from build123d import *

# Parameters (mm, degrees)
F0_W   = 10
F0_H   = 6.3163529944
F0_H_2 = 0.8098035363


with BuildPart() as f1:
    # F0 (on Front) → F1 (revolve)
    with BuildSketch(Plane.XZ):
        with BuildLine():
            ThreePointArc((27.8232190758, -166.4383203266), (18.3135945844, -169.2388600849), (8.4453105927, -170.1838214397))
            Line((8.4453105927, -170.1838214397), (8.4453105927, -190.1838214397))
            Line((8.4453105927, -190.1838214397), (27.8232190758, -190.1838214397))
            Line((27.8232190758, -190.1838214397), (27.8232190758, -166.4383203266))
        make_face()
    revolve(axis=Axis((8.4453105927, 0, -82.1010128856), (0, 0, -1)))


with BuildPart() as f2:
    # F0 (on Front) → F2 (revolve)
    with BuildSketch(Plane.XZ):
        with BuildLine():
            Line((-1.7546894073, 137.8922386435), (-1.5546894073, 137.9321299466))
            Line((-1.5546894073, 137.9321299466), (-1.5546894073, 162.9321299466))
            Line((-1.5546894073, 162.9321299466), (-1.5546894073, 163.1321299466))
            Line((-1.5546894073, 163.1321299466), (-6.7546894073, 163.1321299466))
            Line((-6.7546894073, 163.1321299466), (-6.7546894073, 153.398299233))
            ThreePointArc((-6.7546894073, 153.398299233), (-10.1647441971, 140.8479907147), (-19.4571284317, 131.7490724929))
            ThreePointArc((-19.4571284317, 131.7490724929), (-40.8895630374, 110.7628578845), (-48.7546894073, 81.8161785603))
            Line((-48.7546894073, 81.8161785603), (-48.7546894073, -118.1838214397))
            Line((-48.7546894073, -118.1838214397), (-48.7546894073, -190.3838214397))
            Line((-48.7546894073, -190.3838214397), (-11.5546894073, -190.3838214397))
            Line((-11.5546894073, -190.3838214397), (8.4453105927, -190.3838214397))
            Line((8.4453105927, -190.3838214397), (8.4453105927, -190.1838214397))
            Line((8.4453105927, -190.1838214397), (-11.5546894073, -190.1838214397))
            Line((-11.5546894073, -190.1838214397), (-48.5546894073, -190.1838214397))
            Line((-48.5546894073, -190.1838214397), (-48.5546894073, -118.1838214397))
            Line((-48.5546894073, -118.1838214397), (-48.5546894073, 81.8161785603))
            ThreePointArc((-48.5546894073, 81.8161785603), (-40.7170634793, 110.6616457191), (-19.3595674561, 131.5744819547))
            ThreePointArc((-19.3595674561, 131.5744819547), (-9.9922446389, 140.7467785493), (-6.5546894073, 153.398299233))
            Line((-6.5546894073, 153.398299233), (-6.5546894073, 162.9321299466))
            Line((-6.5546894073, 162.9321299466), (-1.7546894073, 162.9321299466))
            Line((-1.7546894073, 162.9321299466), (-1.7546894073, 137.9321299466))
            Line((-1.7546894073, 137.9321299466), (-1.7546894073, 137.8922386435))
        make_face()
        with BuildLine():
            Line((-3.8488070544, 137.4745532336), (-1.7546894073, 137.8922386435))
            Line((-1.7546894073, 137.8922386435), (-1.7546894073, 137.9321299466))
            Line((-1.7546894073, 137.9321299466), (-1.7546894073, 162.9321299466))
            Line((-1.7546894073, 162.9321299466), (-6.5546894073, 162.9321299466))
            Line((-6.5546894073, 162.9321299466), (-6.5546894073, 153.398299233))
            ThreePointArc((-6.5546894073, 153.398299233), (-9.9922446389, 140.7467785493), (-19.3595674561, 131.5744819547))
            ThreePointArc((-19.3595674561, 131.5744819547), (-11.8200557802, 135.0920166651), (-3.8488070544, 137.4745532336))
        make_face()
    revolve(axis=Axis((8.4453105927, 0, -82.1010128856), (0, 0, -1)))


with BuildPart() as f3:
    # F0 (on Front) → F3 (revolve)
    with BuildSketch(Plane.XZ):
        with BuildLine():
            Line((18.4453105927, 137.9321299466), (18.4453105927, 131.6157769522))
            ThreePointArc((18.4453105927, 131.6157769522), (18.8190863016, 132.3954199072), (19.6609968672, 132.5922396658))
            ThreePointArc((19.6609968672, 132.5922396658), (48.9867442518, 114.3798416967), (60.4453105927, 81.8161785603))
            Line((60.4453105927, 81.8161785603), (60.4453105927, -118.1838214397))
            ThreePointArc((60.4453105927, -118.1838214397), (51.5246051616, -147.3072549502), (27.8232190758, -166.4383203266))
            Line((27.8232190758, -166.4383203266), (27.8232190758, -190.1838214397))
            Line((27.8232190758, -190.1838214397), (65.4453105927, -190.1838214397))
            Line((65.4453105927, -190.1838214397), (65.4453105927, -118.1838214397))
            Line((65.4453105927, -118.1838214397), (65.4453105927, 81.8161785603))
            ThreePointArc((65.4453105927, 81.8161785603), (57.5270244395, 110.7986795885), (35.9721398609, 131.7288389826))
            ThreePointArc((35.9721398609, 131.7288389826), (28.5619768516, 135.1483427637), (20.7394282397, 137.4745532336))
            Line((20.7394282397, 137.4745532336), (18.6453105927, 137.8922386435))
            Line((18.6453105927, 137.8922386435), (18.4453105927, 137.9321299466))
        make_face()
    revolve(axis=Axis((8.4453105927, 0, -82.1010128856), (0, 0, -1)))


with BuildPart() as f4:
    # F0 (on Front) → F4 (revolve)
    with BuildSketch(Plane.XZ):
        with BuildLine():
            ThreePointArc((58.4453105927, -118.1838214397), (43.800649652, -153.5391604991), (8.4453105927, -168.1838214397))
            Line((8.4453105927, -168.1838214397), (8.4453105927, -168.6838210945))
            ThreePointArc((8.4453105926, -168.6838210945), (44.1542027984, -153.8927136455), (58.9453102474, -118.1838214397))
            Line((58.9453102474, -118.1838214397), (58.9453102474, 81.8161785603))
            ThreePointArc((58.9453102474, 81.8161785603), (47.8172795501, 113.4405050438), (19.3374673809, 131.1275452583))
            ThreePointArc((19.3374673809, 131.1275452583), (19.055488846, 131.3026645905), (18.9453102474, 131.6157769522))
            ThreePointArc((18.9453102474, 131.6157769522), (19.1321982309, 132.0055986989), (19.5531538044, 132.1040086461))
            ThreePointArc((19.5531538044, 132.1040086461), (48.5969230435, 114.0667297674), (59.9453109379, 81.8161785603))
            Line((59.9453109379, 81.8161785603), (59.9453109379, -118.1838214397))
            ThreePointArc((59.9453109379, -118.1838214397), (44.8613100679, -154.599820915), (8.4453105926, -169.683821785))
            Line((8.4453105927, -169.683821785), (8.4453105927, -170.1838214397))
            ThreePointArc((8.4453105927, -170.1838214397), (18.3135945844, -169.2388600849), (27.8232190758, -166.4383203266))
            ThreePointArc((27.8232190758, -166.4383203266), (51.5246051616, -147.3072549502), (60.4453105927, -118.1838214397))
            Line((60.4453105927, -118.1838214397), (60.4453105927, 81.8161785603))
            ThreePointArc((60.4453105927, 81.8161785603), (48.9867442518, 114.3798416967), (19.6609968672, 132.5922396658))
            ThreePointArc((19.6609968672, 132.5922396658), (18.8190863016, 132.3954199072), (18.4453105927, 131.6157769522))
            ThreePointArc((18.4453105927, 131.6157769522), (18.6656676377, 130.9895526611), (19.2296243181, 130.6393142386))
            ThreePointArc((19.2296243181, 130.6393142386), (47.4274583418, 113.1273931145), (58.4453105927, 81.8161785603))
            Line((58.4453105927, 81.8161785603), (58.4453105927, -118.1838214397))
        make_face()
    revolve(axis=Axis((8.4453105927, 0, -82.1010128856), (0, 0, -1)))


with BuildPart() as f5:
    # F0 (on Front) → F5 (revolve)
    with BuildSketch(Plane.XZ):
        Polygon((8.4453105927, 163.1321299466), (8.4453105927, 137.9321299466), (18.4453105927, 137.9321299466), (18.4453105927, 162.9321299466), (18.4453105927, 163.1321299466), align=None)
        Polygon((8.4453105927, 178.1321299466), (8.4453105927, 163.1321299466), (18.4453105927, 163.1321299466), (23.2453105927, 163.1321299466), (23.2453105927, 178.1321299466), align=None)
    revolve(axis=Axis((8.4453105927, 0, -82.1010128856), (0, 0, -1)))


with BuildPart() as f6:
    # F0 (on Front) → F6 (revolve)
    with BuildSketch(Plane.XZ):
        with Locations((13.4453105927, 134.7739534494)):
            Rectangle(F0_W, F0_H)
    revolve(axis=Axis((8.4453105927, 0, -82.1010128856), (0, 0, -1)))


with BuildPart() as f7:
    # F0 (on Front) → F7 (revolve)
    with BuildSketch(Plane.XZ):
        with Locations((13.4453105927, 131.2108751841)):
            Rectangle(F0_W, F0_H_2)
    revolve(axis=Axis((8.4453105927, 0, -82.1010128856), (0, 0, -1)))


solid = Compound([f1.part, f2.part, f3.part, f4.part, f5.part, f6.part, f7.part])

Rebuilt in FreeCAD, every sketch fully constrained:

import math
import FreeCAD as App
import Part
import Sketcher

V = App.Vector
Q = App.Units.Quantity


def add_polygon(sketch, points):
    """Adds a closed chain of lines whose ends are joined by coincident constraints."""
    first, n = sketch.GeometryCount, len(points)
    for a, b in zip(points, points[1:] + points[:1]):
        sketch.addGeometry(Part.LineSegment(App.Vector(*a, 0), App.Vector(*b, 0)), False)
    for i in range(n):
        sketch.addConstraint(Sketcher.Constraint("Coincident", first + i, 2, first + (i + 1) % n, 1))

doc = App.newDocument("Part")
params = doc.addObject("Spreadsheet::Sheet", "Params")
for row, (alias, value) in enumerate([
    ("sketch1_radius", "52 mm"),
    ("sketch1_height", "20 mm"),
    ("revolution_angle", "360 deg"),
    ("sketch2_radius", "57 mm"),
    ("sketch2_radius2", "24.8 mm"),
    ("sketch2_radius3", "57.2 mm"),
    ("sketch2_height", "272 mm"),
    ("sketch2_width", "5.2 mm"),
    ("revolution2_angle", "360 deg"),
    ("sketch3_radius", "1 mm"),
    ("sketch3_radius2", "52 mm"),
    ("sketch3_radius3", "57 mm"),
    ("sketch3_height", "200 mm"),
    ("sketch3_height2", "272 mm"),
    ("revolution3_angle", "360 deg"),
    ("sketch4_radius", "50 mm"),
    ("sketch4_radius2", "52 mm"),
    ("sketch4_radius3", "50.5 mm"),
    ("sketch4_height", "200 mm"),
    ("revolution4_angle", "360 deg"),
    ("sketch5_width", "10 mm"),
    ("sketch5_height", "15 mm"),
    ("sketch5_width2", "4.8 mm"),
    ("sketch5_height2", "25.2 mm"),
    ("revolution5_angle", "360 deg"),
    ("sketch6_width", "10 mm"),
    ("revolution6_angle", "360 deg"),
    ("sketch7_width", "10 mm"),
    ("revolution7_angle", "360 deg"),
], start=1):
    params.set(f"A{row}", alias)
    params.set(f"B{row}", "=" + value)
    params.setAlias(f"B{row}", alias)

body = doc.addObject("PartDesign::Body", "Body")

# Sketch on XZ plane
sketch1 = doc.addObject("Sketcher::SketchObject", "Sketch")
body.addObject(sketch1)
sketch1.AttachmentSupport = (doc.XZ_Plane, [""])
sketch1.MapMode = "FlatFace"
sketch1.addGeometry(Part.ArcOfCircle(Part.Circle(V(8, -118, 0), V(0, 0, 1), 52), math.radians(-90), math.radians(-68)), False)
sketch1.addGeometry(Part.LineSegment(V(8, -170, 0), V(8, -190, 0)), False)
sketch1.addGeometry(Part.LineSegment(V(8, -190, 0), V(28, -190, 0)), False)
sketch1.addGeometry(Part.LineSegment(V(28, -190, 0), V(28, -166, 0)), False)
sketch1.addGeometry(Part.LineSegment(V(8, -118, 0), V(8, -190, 0)), True)  # axis
sketch1.addConstraint(Sketcher.Constraint("Coincident", 0, 1, 1, 1))
sketch1.addConstraint(Sketcher.Constraint("Coincident", 1, 2, 2, 1))
sketch1.addConstraint(Sketcher.Constraint("Coincident", 2, 2, 3, 1))
sketch1.addConstraint(Sketcher.Constraint("Coincident", 3, 2, 0, 2))
sketch1.addConstraint(Sketcher.Constraint("Vertical", 1))
sketch1.addConstraint(Sketcher.Constraint("Horizontal", 2))
sketch1.addConstraint(Sketcher.Constraint("Vertical", 3))
sketch1.addConstraint(Sketcher.Constraint("Vertical", 4))
sketch1.addConstraint(Sketcher.Constraint("Coincident", 4, 1, 0, 3))
sketch1.addConstraint(Sketcher.Constraint("Coincident", 4, 2, 1, 2))
sketch1.addConstraint(Sketcher.Constraint("Radius", 0, 52.0))
sketch1.addConstraint(Sketcher.Constraint("DistanceY", 1, 2, 1, 1, 20.0))
sketch1.addConstraint(Sketcher.Constraint("DistanceY", 3, 1, 3, 2, 23.745501))
sketch1.addConstraint(Sketcher.Constraint("DistanceX", -1, 1, 0, 3, 8.445311))
sketch1.addConstraint(Sketcher.Constraint("DistanceY", 0, 3, -1, 1, 118.183821))
sketch1.setExpression("Constraints[10]", "Params.sketch1_radius")
sketch1.setExpression("Constraints[11]", "Params.sketch1_height")
revolution = doc.addObject("PartDesign::Revolution", "Revolution")
body.addObject(revolution)
revolution.Profile = sketch1
revolution.ReferenceAxis = (sketch1, ["Axis0"])
revolution.setExpression("Angle", "Params.revolution_angle")
body2 = doc.addObject("PartDesign::Body", "Body001")

# Sketch on XZ plane
sketch2 = doc.addObject("Sketcher::SketchObject", "Sketch001")
body2.addObject(sketch2)
sketch2.AttachmentSupport = (doc.getObject("XZ_Plane001"), [""])
sketch2.MapMode = "FlatFace"
sketch2.addGeometry(Part.LineSegment(V(-1.75, 137.89, 0), V(-1.55, 137.93, 0)), False)
sketch2.addGeometry(Part.LineSegment(V(-1.55, 137.93, 0), V(-1.55, 163.13, 0)), False)
sketch2.addGeometry(Part.LineSegment(V(-1.55, 163.13, 0), V(-6.75, 163.13, 0)), False)
sketch2.addGeometry(Part.LineSegment(V(-6.75, 163.13, 0), V(-6.75, 153.4, 0)), False)
sketch2.addGeometry(Part.ArcOfCircle(Part.Circle(V(-31.55, 153.4, 0), V(0, 0, 1), 24.8), math.radians(-61), math.radians(0)), False)
sketch2.addGeometry(Part.ArcOfCircle(Part.Circle(V(8.45, 81.82, 0), V(0, 0, 1), 57.2), math.radians(119), math.radians(180)), False)
sketch2.addGeometry(Part.LineSegment(V(-48.75, 81.82, 0), V(-48.75, -190.38, 0)), False)
sketch2.addGeometry(Part.LineSegment(V(-48.75, -190.38, 0), V(8.45, -190.38, 0)), False)
sketch2.addGeometry(Part.LineSegment(V(8.45, -190.38, 0), V(8.45, -190.18, 0)), False)
sketch2.addGeometry(Part.LineSegment(V(8.45, -190.18, 0), V(-48.55, -190.18, 0)), False)
sketch2.addGeometry(Part.LineSegment(V(-48.55, -190.18, 0), V(-48.55, 81.82, 0)), False)
sketch2.addGeometry(Part.ArcOfCircle(Part.Circle(V(8.45, 81.82, 0), V(0, 0, 1), 57), math.radians(119), math.radians(180)), False)
sketch2.addGeometry(Part.ArcOfCircle(Part.Circle(V(8.45, 81.82, 0), V(0, 0, 1), 57), math.radians(102.46), math.radians(119.2)), False)
sketch2.addGeometry(Part.LineSegment(V(-3.85, 137.47, 0), V(-1.75, 137.89, 0)), False)
sketch2.addGeometry(Part.LineSegment(V(8.45, 163.13, 0), V(8.45, -190.38, 0)), True)  # axis
sketch2.addConstraint(Sketcher.Constraint("Coincident", 0, 2, 1, 1))
sketch2.addConstraint(Sketcher.Constraint("Coincident", 1, 2, 2, 1))
sketch2.addConstraint(Sketcher.Constraint("Coincident", 2, 2, 3, 1))
sketch2.addConstraint(Sketcher.Constraint("Tangent", 3, 2, 4, 2))
sketch2.addConstraint(Sketcher.Constraint("Tangent", 4, 1, 5, 1))
sketch2.addConstraint(Sketcher.Constraint("Tangent", 5, 2, 6, 1))
sketch2.addConstraint(Sketcher.Constraint("Coincident", 6, 2, 7, 1))
sketch2.addConstraint(Sketcher.Constraint("Coincident", 7, 2, 8, 1))
sketch2.addConstraint(Sketcher.Constraint("Coincident", 8, 2, 9, 1))
sketch2.addConstraint(Sketcher.Constraint("Coincident", 9, 2, 10, 1))
sketch2.addConstraint(Sketcher.Constraint("Tangent", 10, 2, 11, 2))
sketch2.addConstraint(Sketcher.Constraint("Tangent", 11, 1, 12, 2))
sketch2.addConstraint(Sketcher.Constraint("Coincident", 12, 1, 13, 1))
sketch2.addConstraint(Sketcher.Constraint("Coincident", 13, 2, 0, 1))
sketch2.addConstraint(Sketcher.Constraint("Vertical", 1))
sketch2.addConstraint(Sketcher.Constraint("Horizontal", 2))
sketch2.addConstraint(Sketcher.Constraint("Vertical", 3))
sketch2.addConstraint(Sketcher.Constraint("Vertical", 6))
sketch2.addConstraint(Sketcher.Constraint("Horizontal", 7))
sketch2.addConstraint(Sketcher.Constraint("Vertical", 8))
sketch2.addConstraint(Sketcher.Constraint("Horizontal", 9))
sketch2.addConstraint(Sketcher.Constraint("Vertical", 10))
sketch2.addConstraint(Sketcher.Constraint("Vertical", 14))
sketch2.addConstraint(Sketcher.Constraint("Coincident", 11, 3, 5, 3))
sketch2.addConstraint(Sketcher.Constraint("Coincident", 14, 2, 7, 2))
sketch2.addConstraint(Sketcher.Constraint("Equal", 11, 12))
sketch2.addConstraint(Sketcher.Constraint("Parallel", 0, 13))
sketch2.addConstraint(Sketcher.Constraint("Horizontal", 2, 2, 14, 1))
sketch2.addConstraint(Sketcher.Constraint("Vertical", 12, 3, 7, 2))
sketch2.addConstraint(Sketcher.Constraint("Radius", 11, 57.0))
sketch2.addConstraint(Sketcher.Constraint("Radius", 4, 24.8))
sketch2.addConstraint(Sketcher.Constraint("Radius", 5, 57.2))
sketch2.addConstraint(Sketcher.Constraint("DistanceY", 10, 1, 10, 2, 272.0))
sketch2.addConstraint(Sketcher.Constraint("DistanceX", 2, 2, 2, 1, 5.2))
sketch2.addConstraint(Sketcher.Constraint("DistanceY", 1, 1, 1, 2, 25.2))
sketch2.addConstraint(Sketcher.Constraint("DistanceY", 6, 2, 6, 1, 272.2))
sketch2.addConstraint(Sketcher.Constraint("DistanceX", 4, 3, 5, 3, 40.0))
sketch2.addConstraint(Sketcher.Constraint("DistanceX", 3, 2, 13, 2, 5.0))
sketch2.addConstraint(Sketcher.Constraint("Angle", 0, Q("11.279988 deg")))
sketch2.addConstraint(Sketcher.Constraint("DistanceY", 3, 2, 3, 1, 9.733831))
sketch2.addConstraint(Sketcher.Constraint("DistanceY", -1, 1, 4, 3, 153.398299))
sketch2.addConstraint(Sketcher.Constraint("DistanceX", 4, 3, -1, 1, 31.554689))
sketch2.addConstraint(Sketcher.Constraint("DistanceY", -1, 1, 11, 1, 131.574482))
sketch2.setExpression("Constraints[29]", "Params.sketch2_radius")
sketch2.setExpression("Constraints[30]", "Params.sketch2_radius2")
sketch2.setExpression("Constraints[31]", "Params.sketch2_radius3")
sketch2.setExpression("Constraints[32]", "Params.sketch2_height")
sketch2.setExpression("Constraints[33]", "Params.sketch2_width")
revolution2 = doc.addObject("PartDesign::Revolution", "Revolution001")
body2.addObject(revolution2)
revolution2.Profile = sketch2
revolution2.ReferenceAxis = (sketch2, ["Axis0"])
revolution2.setExpression("Angle", "Params.revolution2_angle")
body3 = doc.addObject("PartDesign::Body", "Body002")

# Sketch on XZ plane
sketch3 = doc.addObject("Sketcher::SketchObject", "Sketch002")
body3.addObject(sketch3)
sketch3.AttachmentSupport = (doc.getObject("XZ_Plane002"), [""])
sketch3.MapMode = "FlatFace"
sketch3.addGeometry(Part.LineSegment(V(18.45, 137.93, 0), V(18.45, 131.62, 0)), False)
sketch3.addGeometry(Part.ArcOfCircle(Part.Circle(V(19.45, 131.62, 0), V(0, 0, 1), 1), math.radians(78), math.radians(180)), False)
sketch3.addGeometry(Part.ArcOfCircle(Part.Circle(V(8.45, 81.82, 0), V(0, 0, 1), 52), math.radians(0), math.radians(78)), False)
sketch3.addGeometry(Part.LineSegment(V(60.45, 81.82, 0), V(60.45, -118.18, 0)), False)
sketch3.addGeometry(Part.ArcOfCircle(Part.Circle(V(8.45, -118.18, 0), V(0, 0, 1), 52), math.radians(-68), math.radians(0)), False)
sketch3.addGeometry(Part.LineSegment(V(27.82, -166.44, 0), V(27.82, -190.18, 0)), False)
sketch3.addGeometry(Part.LineSegment(V(27.82, -190.18, 0), V(65.45, -190.18, 0)), False)
sketch3.addGeometry(Part.LineSegment(V(65.45, -190.18, 0), V(65.45, 81.82, 0)), False)
sketch3.addGeometry(Part.ArcOfCircle(Part.Circle(V(8.45, 81.82, 0), V(0, 0, 1), 57), math.radians(0), math.radians(61)), False)
sketch3.addGeometry(Part.ArcOfCircle(Part.Circle(V(8.45, 81.82, 0), V(0, 0, 1), 57), math.radians(61.12), math.radians(77.54)), False)
sketch3.addGeometry(Part.LineSegment(V(20.74, 137.47, 0), V(18.65, 137.89, 0)), False)
sketch3.addGeometry(Part.LineSegment(V(18.65, 137.89, 0), V(18.45, 137.93, 0)), False)
sketch3.addGeometry(Part.LineSegment(V(8.45, 137.93, 0), V(8.45, -190.18, 0)), True)  # axis
sketch3.addConstraint(Sketcher.Constraint("Tangent", 0, 2, 1, 2))
sketch3.addConstraint(Sketcher.Constraint("Tangent", 1, 1, 2, 2))
sketch3.addConstraint(Sketcher.Constraint("Tangent", 2, 1, 3, 1))
sketch3.addConstraint(Sketcher.Constraint("Tangent", 3, 2, 4, 2))
sketch3.addConstraint(Sketcher.Constraint("Coincident", 4, 1, 5, 1))
sketch3.addConstraint(Sketcher.Constraint("Coincident", 5, 2, 6, 1))
sketch3.addConstraint(Sketcher.Constraint("Coincident", 6, 2, 7, 1))
sketch3.addConstraint(Sketcher.Constraint("Tangent", 7, 2, 8, 1))
sketch3.addConstraint(Sketcher.Constraint("Tangent", 8, 2, 9, 1))
sketch3.addConstraint(Sketcher.Constraint("Coincident", 9, 2, 10, 1))
sketch3.addConstraint(Sketcher.Constraint("Coincident", 10, 2, 11, 1))
sketch3.addConstraint(Sketcher.Constraint("Coincident", 11, 2, 0, 1))
sketch3.addConstraint(Sketcher.Constraint("Vertical", 0))
sketch3.addConstraint(Sketcher.Constraint("Vertical", 3))
sketch3.addConstraint(Sketcher.Constraint("Vertical", 5))
sketch3.addConstraint(Sketcher.Constraint("Horizontal", 6))
sketch3.addConstraint(Sketcher.Constraint("Vertical", 7))
sketch3.addConstraint(Sketcher.Constraint("Vertical", 12))
sketch3.addConstraint(Sketcher.Constraint("Coincident", 8, 3, 2, 3))
sketch3.addConstraint(Sketcher.Constraint("Equal", 2, 4))
sketch3.addConstraint(Sketcher.Constraint("Equal", 8, 9))
sketch3.addConstraint(Sketcher.Constraint("Parallel", 10, 11))
sketch3.addConstraint(Sketcher.Constraint("Horizontal", 11, 2, 12, 1))
sketch3.addConstraint(Sketcher.Constraint("Horizontal", 6, 2, 12, 2))
sketch3.addConstraint(Sketcher.Constraint("Vertical", 9, 3, 12, 1))
sketch3.addConstraint(Sketcher.Constraint("Radius", 1, 1.0))
sketch3.addConstraint(Sketcher.Constraint("Radius", 2, 52.0))
sketch3.addConstraint(Sketcher.Constraint("Radius", 8, 57.0))
sketch3.addConstraint(Sketcher.Constraint("DistanceY", 3, 2, 3, 1, 200.0))
sketch3.addConstraint(Sketcher.Constraint("DistanceY", 7, 1, 7, 2, 272.0))
sketch3.addConstraint(Sketcher.Constraint("DistanceX", 2, 3, 1, 3, 11.0))
sketch3.addConstraint(Sketcher.Constraint("Angle", 10, Q("168.720012 deg")))
sketch3.addConstraint(Sketcher.Constraint("DistanceY", 1, 1, 10, 2, 5.299999))
sketch3.addConstraint(Sketcher.Constraint("DistanceX", 0, 2, 10, 2, 0.2))
sketch3.addConstraint(Sketcher.Constraint("DistanceY", 5, 2, 5, 1, 23.745501))
sketch3.addConstraint(Sketcher.Constraint("DistanceY", 8, 2, 1, 1, 0.863401))
sketch3.addConstraint(Sketcher.Constraint("DistanceX", -1, 1, 1, 3, 19.445311))
sketch3.addConstraint(Sketcher.Constraint("DistanceY", -1, 1, 2, 3, 81.816179))
sketch3.setExpression("Constraints[25]", "Params.sketch3_radius")
sketch3.setExpression("Constraints[26]", "Params.sketch3_radius2")
sketch3.setExpression("Constraints[27]", "Params.sketch3_radius3")
sketch3.setExpression("Constraints[28]", "Params.sketch3_height")
sketch3.setExpression("Constraints[29]", "Params.sketch3_height2")
revolution3 = doc.addObject("PartDesign::Revolution", "Revolution002")
body3.addObject(revolution3)
revolution3.Profile = sketch3
revolution3.ReferenceAxis = (sketch3, ["Axis0"])
revolution3.setExpression("Angle", "Params.revolution3_angle")
body4 = doc.addObject("PartDesign::Body", "Body003")

# Sketch on XZ plane
sketch4 = doc.addObject("Sketcher::SketchObject", "Sketch003")
body4.addObject(sketch4)
sketch4.AttachmentSupport = (doc.getObject("XZ_Plane003"), [""])
sketch4.MapMode = "FlatFace"
sketch4.addGeometry(Part.ArcOfCircle(Part.Circle(V(8.45, -118.18, 0), V(0, 0, 1), 50), math.radians(-90), math.radians(0)), False)
sketch4.addGeometry(Part.LineSegment(V(8.45, -168.18, 0), V(8.45, -168.68, 0)), False)
sketch4.addGeometry(Part.ArcOfCircle(Part.Circle(V(8.45, -118.18, 0), V(0, 0, 1), 50.5), math.radians(-90), math.radians(0)), False)
sketch4.addGeometry(Part.LineSegment(V(58.95, -118.18, 0), V(58.95, 81.82, 0)), False)
sketch4.addGeometry(Part.ArcOfCircle(Part.Circle(V(8.45, 81.82, 0), V(0, 0, 1), 50.5), math.radians(0), math.radians(78)), False)
sketch4.addGeometry(Part.ArcOfCircle(Part.Circle(V(19.45, 131.62, 0), V(0, 0, 1), 0.5), math.radians(180), math.radians(258)), False)
sketch4.addGeometry(Part.ArcOfCircle(Part.Circle(V(19.45, 131.62, 0), V(0, 0, 1), 0.5), math.radians(78), math.radians(180)), False)
sketch4.addGeometry(Part.ArcOfCircle(Part.Circle(V(8.45, 81.82, 0), V(0, 0, 1), 51.5), math.radians(0), math.radians(78)), False)
sketch4.addGeometry(Part.LineSegment(V(59.95, 81.82, 0), V(59.95, -118.18, 0)), False)
sketch4.addGeometry(Part.ArcOfCircle(Part.Circle(V(8.45, -118.18, 0), V(0, 0, 1), 51.5), math.radians(-90), math.radians(0)), False)
sketch4.addGeometry(Part.LineSegment(V(8.45, -169.68, 0), V(8.45, -170.18, 0)), False)
sketch4.addGeometry(Part.ArcOfCircle(Part.Circle(V(8.45, -118.18, 0), V(0, 0, 1), 52), math.radians(-90), math.radians(-68)), False)
sketch4.addGeometry(Part.ArcOfCircle(Part.Circle(V(8.45, -118.18, 0), V(0, 0, 1), 52), math.radians(-68), math.radians(0)), False)
sketch4.addGeometry(Part.LineSegment(V(60.45, -118.18, 0), V(60.45, 81.82, 0)), False)
sketch4.addGeometry(Part.ArcOfCircle(Part.Circle(V(8.45, 81.82, 0), V(0, 0, 1), 52), math.radians(0), math.radians(78)), False)
sketch4.addGeometry(Part.ArcOfCircle(Part.Circle(V(19.45, 131.62, 0), V(0, 0, 1), 1), math.radians(78), math.radians(180)), False)
sketch4.addGeometry(Part.ArcOfCircle(Part.Circle(V(19.45, 131.62, 0), V(0, 0, 1), 1), math.radians(180), math.radians(258)), False)
sketch4.addGeometry(Part.ArcOfCircle(Part.Circle(V(8.45, 81.82, 0), V(0, 0, 1), 50), math.radians(0), math.radians(78)), False)
sketch4.addGeometry(Part.LineSegment(V(58.45, 81.82, 0), V(58.45, -118.18, 0)), False)
sketch4.addGeometry(Part.LineSegment(V(8.45, 132.59, 0), V(8.45, -170.18, 0)), True)  # axis
sketch4.addConstraint(Sketcher.Constraint("Coincident", 0, 1, 1, 1))
sketch4.addConstraint(Sketcher.Constraint("Coincident", 1, 2, 2, 1))
sketch4.addConstraint(Sketcher.Constraint("Tangent", 2, 2, 3, 1))
sketch4.addConstraint(Sketcher.Constraint("Tangent", 3, 2, 4, 1))
sketch4.addConstraint(Sketcher.Constraint("Tangent", 4, 2, 5, 2))
sketch4.addConstraint(Sketcher.Constraint("Tangent", 5, 1, 6, 2))
sketch4.addConstraint(Sketcher.Constraint("Tangent", 6, 1, 7, 2))
sketch4.addConstraint(Sketcher.Constraint("Tangent", 7, 1, 8, 1))
sketch4.addConstraint(Sketcher.Constraint("Tangent", 8, 2, 9, 2))
sketch4.addConstraint(Sketcher.Constraint("Coincident", 9, 1, 10, 1))
sketch4.addConstraint(Sketcher.Constraint("Coincident", 10, 2, 11, 1))
sketch4.addConstraint(Sketcher.Constraint("Tangent", 11, 2, 12, 1))
sketch4.addConstraint(Sketcher.Constraint("Tangent", 12, 2, 13, 1))
sketch4.addConstraint(Sketcher.Constraint("Tangent", 13, 2, 14, 1))
sketch4.addConstraint(Sketcher.Constraint("Tangent", 14, 2, 15, 1))
sketch4.addConstraint(Sketcher.Constraint("Tangent", 15, 2, 16, 1))
sketch4.addConstraint(Sketcher.Constraint("Tangent", 16, 2, 17, 2))
sketch4.addConstraint(Sketcher.Constraint("Tangent", 17, 1, 18, 1))
sketch4.addConstraint(Sketcher.Constraint("Tangent", 18, 2, 0, 2))
sketch4.addConstraint(Sketcher.Constraint("Vertical", 1))
sketch4.addConstraint(Sketcher.Constraint("Vertical", 3))
sketch4.addConstraint(Sketcher.Constraint("Vertical", 8))
sketch4.addConstraint(Sketcher.Constraint("Vertical", 10))
sketch4.addConstraint(Sketcher.Constraint("Vertical", 13))
sketch4.addConstraint(Sketcher.Constraint("Vertical", 18))
sketch4.addConstraint(Sketcher.Constraint("Vertical", 19))
sketch4.addConstraint(Sketcher.Constraint("Coincident", 2, 3, 0, 3))
sketch4.addConstraint(Sketcher.Constraint("Coincident", 7, 3, 4, 3))
sketch4.addConstraint(Sketcher.Constraint("Coincident", 9, 3, 0, 3))
sketch4.addConstraint(Sketcher.Constraint("Coincident", 11, 3, 0, 3))
sketch4.addConstraint(Sketcher.Constraint("Coincident", 14, 3, 4, 3))
sketch4.addConstraint(Sketcher.Constraint("Coincident", 15, 3, 5, 3))
sketch4.addConstraint(Sketcher.Constraint("Coincident", 17, 3, 4, 3))
sketch4.addConstraint(Sketcher.Constraint("Coincident", 19, 2, 10, 2))
sketch4.addConstraint(Sketcher.Constraint("Equal", 2, 4))
sketch4.addConstraint(Sketcher.Constraint("Equal", 5, 6))
sketch4.addConstraint(Sketcher.Constraint("Equal", 11, 12))
sketch4.addConstraint(Sketcher.Constraint("Equal", 15, 16))
sketch4.addConstraint(Sketcher.Constraint("Horizontal", 16, 3, 5, 1))
sketch4.addConstraint(Sketcher.Constraint("Horizontal", 5, 1, 15, 2))
sketch4.addConstraint(Sketcher.Constraint("Horizontal", 14, 2, 19, 1))
sketch4.addConstraint(Sketcher.Constraint("Vertical", 17, 3, 0, 1))
sketch4.addConstraint(Sketcher.Constraint("Vertical", 1, 2, 9, 1))
sketch4.addConstraint(Sketcher.Constraint("Radius", 0, 50.0))
sketch4.addConstraint(Sketcher.Constraint("Radius", 11, 52.0))
sketch4.addConstraint(Sketcher.Constraint("Radius", 2, 50.5))
sketch4.addConstraint(Sketcher.Constraint("DistanceY", 3, 1, 3, 2, 200.0))
sketch4.addConstraint(Sketcher.Constraint("DistanceX", 4, 3, 5, 3, 11.0))
sketch4.addConstraint(Sketcher.Constraint("DistanceY", 0, 1, 11, 2, 1.745501))
sketch4.addConstraint(Sketcher.Constraint("DistanceX", -1, 1, 0, 3, 8.445311))
sketch4.addConstraint(Sketcher.Constraint("DistanceY", 0, 3, -1, 1, 118.183821))
sketch4.setExpression("Constraints[43]", "Params.sketch4_radius")
sketch4.setExpression("Constraints[44]", "Params.sketch4_radius2")
sketch4.setExpression("Constraints[45]", "Params.sketch4_radius3")
sketch4.setExpression("Constraints[46]", "Params.sketch4_height")
revolution4 = doc.addObject("PartDesign::Revolution", "Revolution003")
body4.addObject(revolution4)
revolution4.Profile = sketch4
revolution4.ReferenceAxis = (sketch4, ["Axis0"])
revolution4.setExpression("Angle", "Params.revolution4_angle")
body5 = doc.addObject("PartDesign::Body", "Body004")

# Sketch on XZ plane
sketch5 = doc.addObject("Sketcher::SketchObject", "Sketch004")
body5.addObject(sketch5)
sketch5.AttachmentSupport = (doc.getObject("XZ_Plane004"), [""])
sketch5.MapMode = "FlatFace"
add_polygon(sketch5, [(8.4, 137.9), (18.4, 137.9), (18.4, 163.1), (23.2, 163.1), (23.2, 178.1), (8.4, 178.1)])  # lines 0-5
sketch5.addGeometry(Part.LineSegment(V(8.4, 178.1, 0), V(8.4, 137.9, 0)), True)  # axis
sketch5.addConstraint(Sketcher.Constraint("Horizontal", 0))
sketch5.addConstraint(Sketcher.Constraint("Vertical", 1))
sketch5.addConstraint(Sketcher.Constraint("Horizontal", 2))
sketch5.addConstraint(Sketcher.Constraint("Vertical", 3))
sketch5.addConstraint(Sketcher.Constraint("Horizontal", 4))
sketch5.addConstraint(Sketcher.Constraint("Vertical", 5))
sketch5.addConstraint(Sketcher.Constraint("Vertical", 6))
sketch5.addConstraint(Sketcher.Constraint("Coincident", 6, 1, 4, 2))
sketch5.addConstraint(Sketcher.Constraint("Horizontal", 0, 2, 6, 2))
sketch5.addConstraint(Sketcher.Constraint("DistanceX", 0, 1, 0, 2, 10.0))
sketch5.addConstraint(Sketcher.Constraint("DistanceY", 3, 1, 3, 2, 15.0))
sketch5.addConstraint(Sketcher.Constraint("DistanceX", 2, 1, 2, 2, 4.8))
sketch5.addConstraint(Sketcher.Constraint("DistanceY", 1, 1, 1, 2, 25.2))
sketch5.addConstraint(Sketcher.Constraint("DistanceX", -1, 1, 0, 2, 18.445311))
sketch5.addConstraint(Sketcher.Constraint("DistanceY", -1, 1, 0, 2, 137.93213))
sketch5.setExpression("Constraints[15]", "Params.sketch5_width")
sketch5.setExpression("Constraints[16]", "Params.sketch5_height")
sketch5.setExpression("Constraints[17]", "Params.sketch5_width2")
sketch5.setExpression("Constraints[18]", "Params.sketch5_height2")
revolution5 = doc.addObject("PartDesign::Revolution", "Revolution004")
body5.addObject(revolution5)
revolution5.Profile = sketch5
revolution5.ReferenceAxis = (sketch5, ["Axis0"])
revolution5.setExpression("Angle", "Params.revolution5_angle")
body6 = doc.addObject("PartDesign::Body", "Body005")

# Sketch on XZ plane
sketch6 = doc.addObject("Sketcher::SketchObject", "Sketch005")
body6.addObject(sketch6)
sketch6.AttachmentSupport = (doc.getObject("XZ_Plane005"), [""])
sketch6.MapMode = "FlatFace"
add_polygon(sketch6, [(8, 138), (8, 132), (18, 132), (18, 138)])  # lines 0-3
sketch6.addGeometry(Part.LineSegment(V(8, 138, 0), V(8, 132, 0)), True)  # axis
sketch6.addConstraint(Sketcher.Constraint("Vertical", 0))
sketch6.addConstraint(Sketcher.Constraint("Horizontal", 1))
sketch6.addConstraint(Sketcher.Constraint("Vertical", 2))
sketch6.addConstraint(Sketcher.Constraint("Horizontal", 3))
sketch6.addConstraint(Sketcher.Constraint("Vertical", 4))
sketch6.addConstraint(Sketcher.Constraint("Coincident", 4, 1, 3, 2))
sketch6.addConstraint(Sketcher.Constraint("Horizontal", 1, 2, 4, 2))
sketch6.addConstraint(Sketcher.Constraint("DistanceX", 1, 1, 1, 2, 10.0))
sketch6.addConstraint(Sketcher.Constraint("DistanceY", 0, 2, 0, 1, 6.316353))
sketch6.addConstraint(Sketcher.Constraint("DistanceX", -1, 1, 0, 2, 8.445311))
sketch6.addConstraint(Sketcher.Constraint("DistanceY", -1, 1, 2, 2, 137.93213))
sketch6.setExpression("Constraints[11]", "Params.sketch6_width")
revolution6 = doc.addObject("PartDesign::Revolution", "Revolution005")
body6.addObject(revolution6)
revolution6.Profile = sketch6
revolution6.ReferenceAxis = (sketch6, ["Axis0"])
revolution6.setExpression("Angle", "Params.revolution6_angle")
body7 = doc.addObject("PartDesign::Body", "Body006")

# Sketch on XZ plane
sketch7 = doc.addObject("Sketcher::SketchObject", "Sketch006")
body7.addObject(sketch7)
sketch7.AttachmentSupport = (doc.getObject("XZ_Plane006"), [""])
sketch7.MapMode = "FlatFace"
add_polygon(sketch7, [(8.4, 131.6), (8.4, 130.8), (18.4, 130.8), (18.4, 131.6)])  # lines 0-3
sketch7.addGeometry(Part.LineSegment(V(8.4, 131.6, 0), V(8.4, 130.8, 0)), True)  # axis
sketch7.addConstraint(Sketcher.Constraint("Vertical", 0))
sketch7.addConstraint(Sketcher.Constraint("Horizontal", 1))
sketch7.addConstraint(Sketcher.Constraint("Vertical", 2))
sketch7.addConstraint(Sketcher.Constraint("Horizontal", 3))
sketch7.addConstraint(Sketcher.Constraint("Vertical", 4))
sketch7.addConstraint(Sketcher.Constraint("Coincident", 4, 1, 3, 2))
sketch7.addConstraint(Sketcher.Constraint("Horizontal", 1, 2, 4, 2))
sketch7.addConstraint(Sketcher.Constraint("DistanceX", 1, 1, 1, 2, 10.0))
sketch7.addConstraint(Sketcher.Constraint("DistanceY", 0, 2, 0, 1, 0.809804))
sketch7.addConstraint(Sketcher.Constraint("DistanceX", -1, 1, 0, 2, 8.445311))
sketch7.addConstraint(Sketcher.Constraint("DistanceY", -1, 1, 0, 2, 130.805973))
sketch7.setExpression("Constraints[11]", "Params.sketch7_width")
revolution7 = doc.addObject("PartDesign::Revolution", "Revolution006")
body7.addObject(revolution7)
revolution7.Profile = sketch7
revolution7.ReferenceAxis = (sketch7, ["Axis0"])
revolution7.setExpression("Angle", "Params.revolution7_angle")

doc.recompute()
